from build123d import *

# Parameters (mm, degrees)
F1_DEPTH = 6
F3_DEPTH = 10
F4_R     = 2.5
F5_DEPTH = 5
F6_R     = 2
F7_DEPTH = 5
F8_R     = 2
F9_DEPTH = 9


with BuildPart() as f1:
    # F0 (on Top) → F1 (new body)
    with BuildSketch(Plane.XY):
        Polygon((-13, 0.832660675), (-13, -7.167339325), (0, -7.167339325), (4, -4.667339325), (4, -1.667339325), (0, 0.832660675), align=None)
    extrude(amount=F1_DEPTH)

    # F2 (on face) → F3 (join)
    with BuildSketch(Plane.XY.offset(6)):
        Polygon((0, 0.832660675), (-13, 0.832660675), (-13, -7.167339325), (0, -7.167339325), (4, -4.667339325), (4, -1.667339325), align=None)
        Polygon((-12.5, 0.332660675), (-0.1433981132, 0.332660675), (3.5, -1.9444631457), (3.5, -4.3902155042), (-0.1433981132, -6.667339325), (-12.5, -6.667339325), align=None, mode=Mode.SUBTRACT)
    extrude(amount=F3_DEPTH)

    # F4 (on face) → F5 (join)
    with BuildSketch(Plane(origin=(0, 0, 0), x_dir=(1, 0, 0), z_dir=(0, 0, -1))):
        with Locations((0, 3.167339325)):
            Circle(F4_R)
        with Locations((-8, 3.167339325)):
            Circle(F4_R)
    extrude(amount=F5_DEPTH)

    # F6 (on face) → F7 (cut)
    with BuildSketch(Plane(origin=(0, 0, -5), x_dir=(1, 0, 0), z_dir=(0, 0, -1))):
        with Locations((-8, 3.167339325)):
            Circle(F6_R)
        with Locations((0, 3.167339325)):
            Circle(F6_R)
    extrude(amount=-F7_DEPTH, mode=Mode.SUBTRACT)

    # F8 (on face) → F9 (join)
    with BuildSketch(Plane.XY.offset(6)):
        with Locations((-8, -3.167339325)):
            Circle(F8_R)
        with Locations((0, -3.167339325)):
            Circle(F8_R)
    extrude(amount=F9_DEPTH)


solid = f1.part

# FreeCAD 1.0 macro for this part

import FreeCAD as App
import Part
import Sketcher

V = App.Vector
Q = App.Units.Quantity

doc = App.newDocument("Part")
body = doc.addObject("PartDesign::Body", "Body")

sketch1 = body.newObject("Sketcher::SketchObject", "Sketch")
sketch1.AttachmentSupport = (doc.getObject("XY_Plane"), [""])
sketch1.MapMode = "FlatFace"
sketch1.addGeometry(Part.LineSegment(V(-13, 0.832661, 0), V(-13, -7.167339, 0)), False)
sketch1.addGeometry(Part.LineSegment(V(-13, -7.167339, 0), V(0, -7.167339, 0)), False)
sketch1.addGeometry(Part.LineSegment(V(0, -7.167339, 0), V(4, -4.667339, 0)), False)
sketch1.addGeometry(Part.LineSegment(V(4, -4.667339, 0), V(4, -1.667339, 0)), False)
sketch1.addGeometry(Part.LineSegment(V(4, -1.667339, 0), V(0, 0.832661, 0)), False)
sketch1.addGeometry(Part.LineSegment(V(0, 0.832661, 0), V(-13, 0.832661, 0)), False)
sketch1.addConstraint(Sketcher.Constraint("Coincident", 0, 2, 1, 1))
sketch1.addConstraint(Sketcher.Constraint("Coincident", 1, 2, 2, 1))
sketch1.addConstraint(Sketcher.Constraint("Coincident", 2, 2, 3, 1))
sketch1.addConstraint(Sketcher.Constraint("Coincident", 3, 2, 4, 1))
sketch1.addConstraint(Sketcher.Constraint("Coincident", 4, 2, 5, 1))
sketch1.addConstraint(Sketcher.Constraint("Coincident", 5, 2, 0, 1))
sketch1.addConstraint(Sketcher.Constraint("Vertical", 0))
sketch1.addConstraint(Sketcher.Constraint("Horizontal", 1))
sketch1.addConstraint(Sketcher.Constraint("Vertical", 3))
sketch1.addConstraint(Sketcher.Constraint("Horizontal", 5))
sketch1.addConstraint(Sketcher.Constraint("PointOnObject", 1, 2, -2))
sketch1.addConstraint(Sketcher.Constraint("PointOnObject", 4, 2, -2))
sketch1.addConstraint(Sketcher.Constraint("Equal", 2, 4))
sketch1.addConstraint(Sketcher.Constraint("DistanceX", 1, 1, 1, 2, Q("13 mm")))
sketch1.addConstraint(Sketcher.Constraint("DistanceY", 0, 2, 0, 1, Q("8 mm")))
sketch1.addConstraint(Sketcher.Constraint("DistanceY", 3, 1, 3, 2, Q("3 mm")))
sketch1.addConstraint(Sketcher.Constraint("DistanceX", -1, 1, 2, 2, Q("4 mm")))
sketch1.addConstraint(Sketcher.Constraint("DistanceY", 0, 2, -1, 1, Q("7.167339 mm")))
pad1 = body.newObject("PartDesign::Pad", "Pad")
pad1.Profile = sketch1
pad1.Length = 6

sketch2 = body.newObject("Sketcher::SketchObject", "Sketch001")
sketch2.AttachmentSupport = (doc.getObject("XY_Plane"), [""])
sketch2.MapMode = "FlatFace"
sketch2.AttachmentOffset = App.Placement(V(0, 0, 6), App.Rotation())
sketch2.addGeometry(Part.LineSegment(V(0, 0.832661, 0), V(-13, 0.832661, 0)), False)
sketch2.addGeometry(Part.LineSegment(V(-13, 0.832661, 0), V(-13, -7.167339, 0)), False)
sketch2.addGeometry(Part.LineSegment(V(-13, -7.167339, 0), V(0, -7.167339, 0)), False)
sketch2.addGeometry(Part.LineSegment(V(0, -7.167339, 0), V(4, -4.667339, 0)), False)
sketch2.addGeometry(Part.LineSegment(V(4, -4.667339, 0), V(4, -1.667339, 0)), False)
sketch2.addGeometry(Part.LineSegment(V(4, -1.667339, 0), V(0, 0.832661, 0)), False)
sketch2.addGeometry(Part.LineSegment(V(-12.5, -6.667339, 0), V(-12.5, 0.332661, 0)), False)
sketch2.addGeometry(Part.LineSegment(V(-12.5, 0.332661, 0), V(-0.143398, 0.332661, 0)), False)
sketch2.addGeometry(Part.LineSegment(V(-0.143398, 0.332661, 0), V(3.5, -1.944463, 0)), False)
sketch2.addGeometry(Part.LineSegment(V(3.5, -1.944463, 0), V(3.5, -4.390216, 0)), False)
sketch2.addGeometry(Part.LineSegment(V(3.5, -4.390216, 0), V(-0.143398, -6.667339, 0)), False)
sketch2.addGeometry(Part.LineSegment(V(-0.143398, -6.667339, 0), V(-12.5, -6.667339, 0)), False)
sketch2.addConstraint(Sketcher.Constraint("Coincident", 0, 2, 1, 1))
sketch2.addConstraint(Sketcher.Constraint("Coincident", 1, 2, 2, 1))
sketch2.addConstraint(Sketcher.Constraint("Coincident", 2, 2, 3, 1))
sketch2.addConstraint(Sketcher.Constraint("Coincident", 3, 2, 4, 1))
sketch2.addConstraint(Sketcher.Constraint("Coincident", 4, 2, 5, 1))
sketch2.addConstraint(Sketcher.Constraint("Coincident", 5, 2, 0, 1))
sketch2.addConstraint(Sketcher.Constraint("Coincident", 6, 2, 7, 1))
sketch2.addConstraint(Sketcher.Constraint("Coincident", 7, 2, 8, 1))
sketch2.addConstraint(Sketcher.Constraint("Coincident", 8, 2, 9, 1))
sketch2.addConstraint(Sketcher.Constraint("Coincident", 9, 2, 10, 1))
sketch2.addConstraint(Sketcher.Constraint("Coincident", 10, 2, 11, 1))
sketch2.addConstraint(Sketcher.Constraint("Coincident", 11, 2, 6, 1))
sketch2.addConstraint(Sketcher.Constraint("Horizontal", 0))
sketch2.addConstraint(Sketcher.Constraint("Vertical", 1))
sketch2.addConstraint(Sketcher.Constraint("Horizontal", 2))
sketch2.addConstraint(Sketcher.Constraint("Vertical", 4))
sketch2.addConstraint(Sketcher.Constraint("Vertical", 6))
sketch2.addConstraint(Sketcher.Constraint("Horizontal", 7))
sketch2.addConstraint(Sketcher.Constraint("Vertical", 9))
sketch2.addConstraint(Sketcher.Constraint("Horizontal", 11))
sketch2.addConstraint(Sketcher.Constraint("PointOnObject", 2, 2, -2))
sketch2.addConstraint(Sketcher.Constraint("PointOnObject", 5, 2, -2))
sketch2.addConstraint(Sketcher.Constraint("Parallel", 5, 8))
sketch2.addConstraint(Sketcher.Constraint("Parallel", 3, 10))
sketch2.addConstraint(Sketcher.Constraint("Vertical", 7, 2, 10, 2))
sketch2.addConstraint(Sketcher.Constraint("Equal", 3, 5))
sketch2.addConstraint(Sketcher.Constraint("DistanceX", 0, 2, 0, 1, Q("13 mm")))
sketch2.addConstraint(Sketcher.Constraint("DistanceY", 1, 2, 1, 1, Q("8 mm")))
sketch2.addConstraint(Sketcher.Constraint("DistanceY", 4, 1, 4, 2, Q("3 mm")))
sketch2.addConstraint(Sketcher.Constraint("DistanceY", 6, 1, 6, 2, Q("7 mm")))
sketch2.addConstraint(Sketcher.Constraint("DistanceX", -1, 1, 3, 2, Q("4 mm")))
sketch2.addConstraint(Sketcher.Constraint("DistanceY", 4, 2, 6, 2, Q("2 mm")))
sketch2.addConstraint(Sketcher.Constraint("DistanceX", 6, 2, -1, 1, Q("12.5 mm")))
sketch2.addConstraint(Sketcher.Constraint("DistanceX", -1, 1, 8, 2, Q("3.5 mm")))
sketch2.addConstraint(Sketcher.Constraint("DistanceX", 7, 1, 7, 2, Q("12.356602 mm")))
sketch2.addConstraint(Sketcher.Constraint("DistanceY", -1, 1, 0, 2, Q("0.832661 mm")))
pad2 = body.newObject("PartDesign::Pad", "Pad001")
pad2.Profile = sketch2
pad2.Length = 10

sketch3 = body.newObject("Sketcher::SketchObject", "Sketch002")
sketch3.AttachmentSupport = (doc.getObject("XY_Plane"), [""])
sketch3.MapMode = "FlatFace"
sketch3.addGeometry(Part.Circle(V(0, -3.167339, 0), V(0, 0, 1), 2.5), False)
sketch3.addGeometry(Part.Circle(V(-8, -3.167339, 0), V(0, 0, 1), 2.5), False)
sketch3.addConstraint(Sketcher.Constraint("Equal", 0, 1))
sketch3.addConstraint(Sketcher.Constraint("PointOnObject", 0, 3, -2))
sketch3.addConstraint(Sketcher.Constraint("Horizontal", 0, 3, 1, 3))
sketch3.addConstraint(Sketcher.Constraint("Diameter", 0, Q("5 mm")))
sketch3.addConstraint(Sketcher.Constraint("DistanceX", 1, 3, -1, 1, Q("8 mm")))
sketch3.addConstraint(Sketcher.Constraint("DistanceY", 0, 3, -1, 1, Q("3.167339 mm")))
pad3 = body.newObject("PartDesign::Pad", "Pad002")
pad3.Profile = sketch3
pad3.Length = 5
pad3.Reversed = True

sketch4 = body.newObject("Sketcher::SketchObject", "Sketch003")
sketch4.AttachmentSupport = (doc.getObject("XY_Plane"), [""])
sketch4.MapMode = "FlatFace"
sketch4.AttachmentOffset = App.Placement(V(0, 0, -5), App.Rotation())
sketch4.addGeometry(Part.Circle(V(-8, -3.167339, 0), V(0, 0, 1), 2), False)
sketch4.addGeometry(Part.Circle(V(0, -3.167339, 0), V(0, 0, 1), 2), False)
sketch4.addConstraint(Sketcher.Constraint("Equal", 0, 1))
sketch4.addConstraint(Sketcher.Constraint("PointOnObject", 1, 3, -2))
sketch4.addConstraint(Sketcher.Constraint("Horizontal", 0, 3, 1, 3))
sketch4.addConstraint(Sketcher.Constraint("Diameter", 0, Q("4 mm")))
sketch4.addConstraint(Sketcher.Constraint("DistanceX", 0, 3, -1, 1, Q("8 mm")))
sketch4.addConstraint(Sketcher.Constraint("DistanceY", 0, 3, -1, 1, Q("3.167339 mm")))
pocket1 = body.newObject("PartDesign::Pocket", "Pocket")
pocket1.Profile = sketch4
pocket1.Length = 5
pocket1.Reversed = True

sketch5 = body.newObject("Sketcher::SketchObject", "Sketch004")
sketch5.AttachmentSupport = (doc.getObject("XY_Plane"), [""])
sketch5.MapMode = "FlatFace"
sketch5.AttachmentOffset = App.Placement(V(0, 0, 6), App.Rotation())
sketch5.addGeometry(Part.Circle(V(-8, -3.167339, 0), V(0, 0, 1), 2), False)
sketch5.addGeometry(Part.Circle(V(0, -3.167339, 0), V(0, 0, 1), 2), False)
sketch5.addConstraint(Sketcher.Constraint("Equal", 0, 1))
sketch5.addConstraint(Sketcher.Constraint("PointOnObject", 1, 3, -2))
sketch5.addConstraint(Sketcher.Constraint("Horizontal", 0, 3, 1, 3))
sketch5.addConstraint(Sketcher.Constraint("Diameter", 0, Q("4 mm")))
sketch5.addConstraint(Sketcher.Constraint("DistanceX", 0, 3, -1, 1, Q("8 mm")))
sketch5.addConstraint(Sketcher.Constraint("DistanceY", 0, 3, -1, 1, Q("3.167339 mm")))
pad4 = body.newObject("PartDesign::Pad", "Pad003")
pad4.Profile = sketch5
pad4.Length = 9

doc.recompute()
